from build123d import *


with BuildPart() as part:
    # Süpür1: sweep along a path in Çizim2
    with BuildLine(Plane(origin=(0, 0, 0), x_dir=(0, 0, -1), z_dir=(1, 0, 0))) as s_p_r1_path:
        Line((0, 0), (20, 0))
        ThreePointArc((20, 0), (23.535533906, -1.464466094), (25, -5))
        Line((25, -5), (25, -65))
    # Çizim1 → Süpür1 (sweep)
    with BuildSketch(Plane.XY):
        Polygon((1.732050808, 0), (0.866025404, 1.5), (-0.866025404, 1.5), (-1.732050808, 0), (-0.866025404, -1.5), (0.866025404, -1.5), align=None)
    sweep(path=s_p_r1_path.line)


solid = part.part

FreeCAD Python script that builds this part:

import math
import FreeCAD as App
import Part
import Sketcher
from FreeCAD import Vector
Q = App.Units.Quantity


def add_polygon(sketch, points):
    """Adds a closed chain of lines whose ends are joined by coincident constraints."""
    first, n = sketch.GeometryCount, len(points)
    for a, b in zip(points, points[1:] + points[:1]):
        sketch.addGeometry(Part.LineSegment(App.Vector(*a, 0), App.Vector(*b, 0)), False)
    for i in range(n):
        sketch.addConstraint(Sketcher.Constraint("Coincident", first + i, 2, first + (i + 1) % n, 1))

doc = App.newDocument("Part")
body = doc.addObject("PartDesign::Body", "Body")

sketch1 = doc.addObject("Sketcher::SketchObject", "Sketch")
body.addObject(sketch1)
sketch1.AttachmentSupport = (doc.XY_Plane, [""])
sketch1.MapMode = "FlatFace"
add_polygon(sketch1, [(1.7, 0), (0.9, 1.5), (-0.9, 1.5), (-1.7, 0), (-0.9, -1.5), (0.9, -1.5)])
sketch1.addConstraint([
    Sketcher.Constraint("Horizontal", 1),
    Sketcher.Constraint("Horizontal", 4),
    Sketcher.Constraint("Symmetric", 0, 2, 3, 2, -1, 1),
    Sketcher.Constraint("Symmetric", 2, 2, 5, 2, -1, 1),
    Sketcher.Constraint("PointOnObject", 2, 2, -1),
    Sketcher.Constraint("Parallel", 2, 5),
    Sketcher.Constraint("Vertical", 1, 2, 3, 2),
    Sketcher.Constraint("Angle", 0, Q("120 deg")),
    Sketcher.Constraint("DistanceY", 3, 2, 1, 2, 3.0),
    Sketcher.Constraint("DistanceX", 1, 2, 1, 1, 1.732051),
])

sketch2 = doc.addObject("Sketcher::SketchObject", "Sketch001")
body.addObject(sketch2)
sketch2.AttachmentSupport = (doc.YZ_Plane, [""])
sketch2.MapMode = "FlatFace"
sketch2.addGeometry([
    Part.LineSegment(Vector(0, 0, 0), Vector(0, -20, 0)),
    Part.ArcOfCircle(Part.Circle(Vector(-5, -20, 0), Vector(0, 0, 1), 5), math.radians(-90), math.radians(0)),
    Part.LineSegment(Vector(-5, -25, 0), Vector(-65, -25, 0)),
], False)
sketch2.addConstraint([
    Sketcher.Constraint("Tangent", 0, 2, 1, 2),
    Sketcher.Constraint("Tangent", 1, 1, 2, 1),
    Sketcher.Constraint("Vertical", 0),
    Sketcher.Constraint("Horizontal", 2),
    Sketcher.Constraint("Coincident", 0, 1, -1, 1),
    Sketcher.Constraint("Radius", 1, 5.0),
    Sketcher.Constraint("DistanceX", 2, 2, 2, 1, 60.0),
    Sketcher.Constraint("DistanceY", 0, 2, 0, 1, 20.0),
])
doc.recompute()

additivepipe = doc.addObject("PartDesign::AdditivePipe", "AdditivePipe")
body.addObject(additivepipe)
additivepipe.Profile = sketch1
additivepipe.Spine = (sketch2, ["Edge1", "Edge2", "Edge3"])

doc.recompute()
